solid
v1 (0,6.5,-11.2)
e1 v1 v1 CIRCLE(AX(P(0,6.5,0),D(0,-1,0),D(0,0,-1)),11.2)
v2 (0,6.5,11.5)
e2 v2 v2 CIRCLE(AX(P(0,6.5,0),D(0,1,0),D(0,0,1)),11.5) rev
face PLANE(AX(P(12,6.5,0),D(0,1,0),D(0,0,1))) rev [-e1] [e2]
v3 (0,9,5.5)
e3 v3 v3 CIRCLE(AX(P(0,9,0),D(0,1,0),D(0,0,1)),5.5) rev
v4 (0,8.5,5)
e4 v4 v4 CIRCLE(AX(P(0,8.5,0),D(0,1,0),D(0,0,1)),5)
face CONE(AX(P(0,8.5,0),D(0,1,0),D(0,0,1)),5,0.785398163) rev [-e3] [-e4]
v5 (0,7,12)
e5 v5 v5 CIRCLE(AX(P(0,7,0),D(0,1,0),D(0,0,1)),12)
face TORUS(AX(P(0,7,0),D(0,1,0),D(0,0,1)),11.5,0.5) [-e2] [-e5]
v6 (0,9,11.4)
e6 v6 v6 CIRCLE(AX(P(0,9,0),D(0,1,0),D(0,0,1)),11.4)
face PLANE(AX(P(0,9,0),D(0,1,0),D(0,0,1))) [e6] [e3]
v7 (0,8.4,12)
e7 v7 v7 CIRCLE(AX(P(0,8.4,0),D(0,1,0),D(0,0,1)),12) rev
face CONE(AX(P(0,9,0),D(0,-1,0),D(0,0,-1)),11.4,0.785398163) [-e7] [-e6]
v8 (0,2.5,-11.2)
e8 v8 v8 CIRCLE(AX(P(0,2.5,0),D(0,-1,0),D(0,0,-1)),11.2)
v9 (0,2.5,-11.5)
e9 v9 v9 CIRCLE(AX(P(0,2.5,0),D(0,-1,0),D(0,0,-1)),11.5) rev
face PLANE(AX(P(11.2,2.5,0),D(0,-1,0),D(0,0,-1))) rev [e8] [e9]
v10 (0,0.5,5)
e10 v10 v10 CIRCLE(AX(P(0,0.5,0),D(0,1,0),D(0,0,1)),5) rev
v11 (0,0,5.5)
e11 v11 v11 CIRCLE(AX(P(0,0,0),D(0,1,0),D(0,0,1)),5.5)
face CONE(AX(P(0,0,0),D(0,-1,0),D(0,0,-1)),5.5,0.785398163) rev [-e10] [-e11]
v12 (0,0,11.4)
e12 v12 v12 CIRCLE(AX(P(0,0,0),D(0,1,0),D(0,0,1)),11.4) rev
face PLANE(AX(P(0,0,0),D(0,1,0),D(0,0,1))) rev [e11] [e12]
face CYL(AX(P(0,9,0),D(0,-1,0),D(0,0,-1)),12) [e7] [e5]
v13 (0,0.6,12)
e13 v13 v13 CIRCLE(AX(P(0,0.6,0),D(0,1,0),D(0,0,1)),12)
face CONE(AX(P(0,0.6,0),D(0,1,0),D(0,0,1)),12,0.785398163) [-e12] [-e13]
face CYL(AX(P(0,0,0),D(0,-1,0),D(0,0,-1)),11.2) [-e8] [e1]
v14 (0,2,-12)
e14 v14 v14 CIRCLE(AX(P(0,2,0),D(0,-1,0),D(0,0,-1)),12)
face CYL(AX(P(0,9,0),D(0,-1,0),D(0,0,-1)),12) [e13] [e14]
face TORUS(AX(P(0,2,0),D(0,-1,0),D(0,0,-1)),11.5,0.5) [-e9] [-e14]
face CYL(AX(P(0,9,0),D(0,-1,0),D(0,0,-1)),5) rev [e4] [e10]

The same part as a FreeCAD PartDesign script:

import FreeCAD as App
import Part
import Sketcher


def edges_at(feature, points):
    """Names of the edges that pass closest to the given points."""
    edges = feature.Shape.Edges
    near = lambda p: min(range(len(edges)), key=lambda i: edges[i].distToShape(Part.Vertex(*p))[0])
    return sorted({f"Edge{near(p) + 1}" for p in points})


def add_polygon(sketch, points):
    """Adds a closed chain of lines whose ends are joined by coincident constraints."""
    first, n = sketch.GeometryCount, len(points)
    for a, b in zip(points, points[1:] + points[:1]):
        sketch.addGeometry(Part.LineSegment(App.Vector(*a, 0), App.Vector(*b, 0)), False)
    for i in range(n):
        sketch.addConstraint(Sketcher.Constraint("Coincident", first + i, 2, first + (i + 1) % n, 1))

doc = App.newDocument("Part")
body = doc.addObject("PartDesign::Body", "Body")

sketch1 = body.newObject("Sketcher::SketchObject", "Sketch")
sketch1.AttachmentSupport = (doc.getObject("XZ_Plane"), [""])
sketch1.MapMode = "FlatFace"
sketch1.addGeometry(Part.Circle(App.Vector(0, 0, 0), App.Vector(0, 0, 1), 12), False)
sketch1.addGeometry(Part.Circle(App.Vector(0, 0, 0), App.Vector(0, 0, 1), 5), False)
sketch1.addConstraint(Sketcher.Constraint("Coincident", 0, 3, -1, 1))
sketch1.addConstraint(Sketcher.Constraint("Coincident", 1, 3, -1, 1))
sketch1.addConstraint(Sketcher.Constraint("Diameter", 0, 24.0))
sketch1.addConstraint(Sketcher.Constraint("Diameter", 1, 10.0))
pad1 = body.newObject("PartDesign::Pad", "Pad")
pad1.Profile = sketch1
pad1.Length = 9
pad1.Reversed = True
doc.recompute()

chamfer = body.newObject("PartDesign::Chamfer", "Chamfer")
chamfer.Base = (pad1, edges_at(pad1, [(-12, 0, 0), (-12, 9, 0)]))
chamfer.Size = 0.6

sketch2 = body.newObject("Sketcher::SketchObject", "Sketch001")
sketch2.AttachmentSupport = (doc.getObject("XY_Plane"), [""])
sketch2.MapMode = "FlatFace"
add_polygon(sketch2, [(12, 6.5), (11.2, 6.5), (11.2, 2.5), (12, 2.5), (14.7, 3.7)])
sketch2.addConstraint(Sketcher.Constraint("Horizontal", 0))
sketch2.addConstraint(Sketcher.Constraint("Vertical", 1))
sketch2.addConstraint(Sketcher.Constraint("Horizontal", 2))
sketch2.addConstraint(Sketcher.Constraint("Vertical", 2, 2, 4, 2))
sketch2.addConstraint(Sketcher.Constraint("DistanceY", 1, 2, 1, 1, 4.0))
sketch2.addConstraint(Sketcher.Constraint("DistanceX", 0, 2, 0, 1, 0.8))
sketch2.addConstraint(Sketcher.Constraint("DistanceX", -1, 1, 2, 2, 12.0))
sketch2.addConstraint(Sketcher.Constraint("DistanceY", -1, 1, 0, 2, 6.5))
sketch2.addConstraint(Sketcher.Constraint("DistanceY", -1, 1, 3, 2, 3.734931))
sketch2.addConstraint(Sketcher.Constraint("Distance", 3, 2.947195))
groove = body.newObject("PartDesign::Groove", "Groove")
groove.Profile = sketch2
groove.ReferenceAxis = (sketch2, ["V_Axis"])
groove.Angle = 360
doc.recompute()

fillet = body.newObject("PartDesign::Fillet", "Fillet")
fillet.Base = (groove, edges_at(groove, [(-12, 6.5, 0), (-12, 2.5, 0)]))
fillet.Radius = 0.5
doc.recompute()

chamfer2 = body.newObject("PartDesign::Chamfer", "Chamfer001")
chamfer2.Base = (fillet, edges_at(fillet, [(-5, 0, 0), (-5, 9, 0)]))
chamfer2.Size = 0.5

doc.recompute()
